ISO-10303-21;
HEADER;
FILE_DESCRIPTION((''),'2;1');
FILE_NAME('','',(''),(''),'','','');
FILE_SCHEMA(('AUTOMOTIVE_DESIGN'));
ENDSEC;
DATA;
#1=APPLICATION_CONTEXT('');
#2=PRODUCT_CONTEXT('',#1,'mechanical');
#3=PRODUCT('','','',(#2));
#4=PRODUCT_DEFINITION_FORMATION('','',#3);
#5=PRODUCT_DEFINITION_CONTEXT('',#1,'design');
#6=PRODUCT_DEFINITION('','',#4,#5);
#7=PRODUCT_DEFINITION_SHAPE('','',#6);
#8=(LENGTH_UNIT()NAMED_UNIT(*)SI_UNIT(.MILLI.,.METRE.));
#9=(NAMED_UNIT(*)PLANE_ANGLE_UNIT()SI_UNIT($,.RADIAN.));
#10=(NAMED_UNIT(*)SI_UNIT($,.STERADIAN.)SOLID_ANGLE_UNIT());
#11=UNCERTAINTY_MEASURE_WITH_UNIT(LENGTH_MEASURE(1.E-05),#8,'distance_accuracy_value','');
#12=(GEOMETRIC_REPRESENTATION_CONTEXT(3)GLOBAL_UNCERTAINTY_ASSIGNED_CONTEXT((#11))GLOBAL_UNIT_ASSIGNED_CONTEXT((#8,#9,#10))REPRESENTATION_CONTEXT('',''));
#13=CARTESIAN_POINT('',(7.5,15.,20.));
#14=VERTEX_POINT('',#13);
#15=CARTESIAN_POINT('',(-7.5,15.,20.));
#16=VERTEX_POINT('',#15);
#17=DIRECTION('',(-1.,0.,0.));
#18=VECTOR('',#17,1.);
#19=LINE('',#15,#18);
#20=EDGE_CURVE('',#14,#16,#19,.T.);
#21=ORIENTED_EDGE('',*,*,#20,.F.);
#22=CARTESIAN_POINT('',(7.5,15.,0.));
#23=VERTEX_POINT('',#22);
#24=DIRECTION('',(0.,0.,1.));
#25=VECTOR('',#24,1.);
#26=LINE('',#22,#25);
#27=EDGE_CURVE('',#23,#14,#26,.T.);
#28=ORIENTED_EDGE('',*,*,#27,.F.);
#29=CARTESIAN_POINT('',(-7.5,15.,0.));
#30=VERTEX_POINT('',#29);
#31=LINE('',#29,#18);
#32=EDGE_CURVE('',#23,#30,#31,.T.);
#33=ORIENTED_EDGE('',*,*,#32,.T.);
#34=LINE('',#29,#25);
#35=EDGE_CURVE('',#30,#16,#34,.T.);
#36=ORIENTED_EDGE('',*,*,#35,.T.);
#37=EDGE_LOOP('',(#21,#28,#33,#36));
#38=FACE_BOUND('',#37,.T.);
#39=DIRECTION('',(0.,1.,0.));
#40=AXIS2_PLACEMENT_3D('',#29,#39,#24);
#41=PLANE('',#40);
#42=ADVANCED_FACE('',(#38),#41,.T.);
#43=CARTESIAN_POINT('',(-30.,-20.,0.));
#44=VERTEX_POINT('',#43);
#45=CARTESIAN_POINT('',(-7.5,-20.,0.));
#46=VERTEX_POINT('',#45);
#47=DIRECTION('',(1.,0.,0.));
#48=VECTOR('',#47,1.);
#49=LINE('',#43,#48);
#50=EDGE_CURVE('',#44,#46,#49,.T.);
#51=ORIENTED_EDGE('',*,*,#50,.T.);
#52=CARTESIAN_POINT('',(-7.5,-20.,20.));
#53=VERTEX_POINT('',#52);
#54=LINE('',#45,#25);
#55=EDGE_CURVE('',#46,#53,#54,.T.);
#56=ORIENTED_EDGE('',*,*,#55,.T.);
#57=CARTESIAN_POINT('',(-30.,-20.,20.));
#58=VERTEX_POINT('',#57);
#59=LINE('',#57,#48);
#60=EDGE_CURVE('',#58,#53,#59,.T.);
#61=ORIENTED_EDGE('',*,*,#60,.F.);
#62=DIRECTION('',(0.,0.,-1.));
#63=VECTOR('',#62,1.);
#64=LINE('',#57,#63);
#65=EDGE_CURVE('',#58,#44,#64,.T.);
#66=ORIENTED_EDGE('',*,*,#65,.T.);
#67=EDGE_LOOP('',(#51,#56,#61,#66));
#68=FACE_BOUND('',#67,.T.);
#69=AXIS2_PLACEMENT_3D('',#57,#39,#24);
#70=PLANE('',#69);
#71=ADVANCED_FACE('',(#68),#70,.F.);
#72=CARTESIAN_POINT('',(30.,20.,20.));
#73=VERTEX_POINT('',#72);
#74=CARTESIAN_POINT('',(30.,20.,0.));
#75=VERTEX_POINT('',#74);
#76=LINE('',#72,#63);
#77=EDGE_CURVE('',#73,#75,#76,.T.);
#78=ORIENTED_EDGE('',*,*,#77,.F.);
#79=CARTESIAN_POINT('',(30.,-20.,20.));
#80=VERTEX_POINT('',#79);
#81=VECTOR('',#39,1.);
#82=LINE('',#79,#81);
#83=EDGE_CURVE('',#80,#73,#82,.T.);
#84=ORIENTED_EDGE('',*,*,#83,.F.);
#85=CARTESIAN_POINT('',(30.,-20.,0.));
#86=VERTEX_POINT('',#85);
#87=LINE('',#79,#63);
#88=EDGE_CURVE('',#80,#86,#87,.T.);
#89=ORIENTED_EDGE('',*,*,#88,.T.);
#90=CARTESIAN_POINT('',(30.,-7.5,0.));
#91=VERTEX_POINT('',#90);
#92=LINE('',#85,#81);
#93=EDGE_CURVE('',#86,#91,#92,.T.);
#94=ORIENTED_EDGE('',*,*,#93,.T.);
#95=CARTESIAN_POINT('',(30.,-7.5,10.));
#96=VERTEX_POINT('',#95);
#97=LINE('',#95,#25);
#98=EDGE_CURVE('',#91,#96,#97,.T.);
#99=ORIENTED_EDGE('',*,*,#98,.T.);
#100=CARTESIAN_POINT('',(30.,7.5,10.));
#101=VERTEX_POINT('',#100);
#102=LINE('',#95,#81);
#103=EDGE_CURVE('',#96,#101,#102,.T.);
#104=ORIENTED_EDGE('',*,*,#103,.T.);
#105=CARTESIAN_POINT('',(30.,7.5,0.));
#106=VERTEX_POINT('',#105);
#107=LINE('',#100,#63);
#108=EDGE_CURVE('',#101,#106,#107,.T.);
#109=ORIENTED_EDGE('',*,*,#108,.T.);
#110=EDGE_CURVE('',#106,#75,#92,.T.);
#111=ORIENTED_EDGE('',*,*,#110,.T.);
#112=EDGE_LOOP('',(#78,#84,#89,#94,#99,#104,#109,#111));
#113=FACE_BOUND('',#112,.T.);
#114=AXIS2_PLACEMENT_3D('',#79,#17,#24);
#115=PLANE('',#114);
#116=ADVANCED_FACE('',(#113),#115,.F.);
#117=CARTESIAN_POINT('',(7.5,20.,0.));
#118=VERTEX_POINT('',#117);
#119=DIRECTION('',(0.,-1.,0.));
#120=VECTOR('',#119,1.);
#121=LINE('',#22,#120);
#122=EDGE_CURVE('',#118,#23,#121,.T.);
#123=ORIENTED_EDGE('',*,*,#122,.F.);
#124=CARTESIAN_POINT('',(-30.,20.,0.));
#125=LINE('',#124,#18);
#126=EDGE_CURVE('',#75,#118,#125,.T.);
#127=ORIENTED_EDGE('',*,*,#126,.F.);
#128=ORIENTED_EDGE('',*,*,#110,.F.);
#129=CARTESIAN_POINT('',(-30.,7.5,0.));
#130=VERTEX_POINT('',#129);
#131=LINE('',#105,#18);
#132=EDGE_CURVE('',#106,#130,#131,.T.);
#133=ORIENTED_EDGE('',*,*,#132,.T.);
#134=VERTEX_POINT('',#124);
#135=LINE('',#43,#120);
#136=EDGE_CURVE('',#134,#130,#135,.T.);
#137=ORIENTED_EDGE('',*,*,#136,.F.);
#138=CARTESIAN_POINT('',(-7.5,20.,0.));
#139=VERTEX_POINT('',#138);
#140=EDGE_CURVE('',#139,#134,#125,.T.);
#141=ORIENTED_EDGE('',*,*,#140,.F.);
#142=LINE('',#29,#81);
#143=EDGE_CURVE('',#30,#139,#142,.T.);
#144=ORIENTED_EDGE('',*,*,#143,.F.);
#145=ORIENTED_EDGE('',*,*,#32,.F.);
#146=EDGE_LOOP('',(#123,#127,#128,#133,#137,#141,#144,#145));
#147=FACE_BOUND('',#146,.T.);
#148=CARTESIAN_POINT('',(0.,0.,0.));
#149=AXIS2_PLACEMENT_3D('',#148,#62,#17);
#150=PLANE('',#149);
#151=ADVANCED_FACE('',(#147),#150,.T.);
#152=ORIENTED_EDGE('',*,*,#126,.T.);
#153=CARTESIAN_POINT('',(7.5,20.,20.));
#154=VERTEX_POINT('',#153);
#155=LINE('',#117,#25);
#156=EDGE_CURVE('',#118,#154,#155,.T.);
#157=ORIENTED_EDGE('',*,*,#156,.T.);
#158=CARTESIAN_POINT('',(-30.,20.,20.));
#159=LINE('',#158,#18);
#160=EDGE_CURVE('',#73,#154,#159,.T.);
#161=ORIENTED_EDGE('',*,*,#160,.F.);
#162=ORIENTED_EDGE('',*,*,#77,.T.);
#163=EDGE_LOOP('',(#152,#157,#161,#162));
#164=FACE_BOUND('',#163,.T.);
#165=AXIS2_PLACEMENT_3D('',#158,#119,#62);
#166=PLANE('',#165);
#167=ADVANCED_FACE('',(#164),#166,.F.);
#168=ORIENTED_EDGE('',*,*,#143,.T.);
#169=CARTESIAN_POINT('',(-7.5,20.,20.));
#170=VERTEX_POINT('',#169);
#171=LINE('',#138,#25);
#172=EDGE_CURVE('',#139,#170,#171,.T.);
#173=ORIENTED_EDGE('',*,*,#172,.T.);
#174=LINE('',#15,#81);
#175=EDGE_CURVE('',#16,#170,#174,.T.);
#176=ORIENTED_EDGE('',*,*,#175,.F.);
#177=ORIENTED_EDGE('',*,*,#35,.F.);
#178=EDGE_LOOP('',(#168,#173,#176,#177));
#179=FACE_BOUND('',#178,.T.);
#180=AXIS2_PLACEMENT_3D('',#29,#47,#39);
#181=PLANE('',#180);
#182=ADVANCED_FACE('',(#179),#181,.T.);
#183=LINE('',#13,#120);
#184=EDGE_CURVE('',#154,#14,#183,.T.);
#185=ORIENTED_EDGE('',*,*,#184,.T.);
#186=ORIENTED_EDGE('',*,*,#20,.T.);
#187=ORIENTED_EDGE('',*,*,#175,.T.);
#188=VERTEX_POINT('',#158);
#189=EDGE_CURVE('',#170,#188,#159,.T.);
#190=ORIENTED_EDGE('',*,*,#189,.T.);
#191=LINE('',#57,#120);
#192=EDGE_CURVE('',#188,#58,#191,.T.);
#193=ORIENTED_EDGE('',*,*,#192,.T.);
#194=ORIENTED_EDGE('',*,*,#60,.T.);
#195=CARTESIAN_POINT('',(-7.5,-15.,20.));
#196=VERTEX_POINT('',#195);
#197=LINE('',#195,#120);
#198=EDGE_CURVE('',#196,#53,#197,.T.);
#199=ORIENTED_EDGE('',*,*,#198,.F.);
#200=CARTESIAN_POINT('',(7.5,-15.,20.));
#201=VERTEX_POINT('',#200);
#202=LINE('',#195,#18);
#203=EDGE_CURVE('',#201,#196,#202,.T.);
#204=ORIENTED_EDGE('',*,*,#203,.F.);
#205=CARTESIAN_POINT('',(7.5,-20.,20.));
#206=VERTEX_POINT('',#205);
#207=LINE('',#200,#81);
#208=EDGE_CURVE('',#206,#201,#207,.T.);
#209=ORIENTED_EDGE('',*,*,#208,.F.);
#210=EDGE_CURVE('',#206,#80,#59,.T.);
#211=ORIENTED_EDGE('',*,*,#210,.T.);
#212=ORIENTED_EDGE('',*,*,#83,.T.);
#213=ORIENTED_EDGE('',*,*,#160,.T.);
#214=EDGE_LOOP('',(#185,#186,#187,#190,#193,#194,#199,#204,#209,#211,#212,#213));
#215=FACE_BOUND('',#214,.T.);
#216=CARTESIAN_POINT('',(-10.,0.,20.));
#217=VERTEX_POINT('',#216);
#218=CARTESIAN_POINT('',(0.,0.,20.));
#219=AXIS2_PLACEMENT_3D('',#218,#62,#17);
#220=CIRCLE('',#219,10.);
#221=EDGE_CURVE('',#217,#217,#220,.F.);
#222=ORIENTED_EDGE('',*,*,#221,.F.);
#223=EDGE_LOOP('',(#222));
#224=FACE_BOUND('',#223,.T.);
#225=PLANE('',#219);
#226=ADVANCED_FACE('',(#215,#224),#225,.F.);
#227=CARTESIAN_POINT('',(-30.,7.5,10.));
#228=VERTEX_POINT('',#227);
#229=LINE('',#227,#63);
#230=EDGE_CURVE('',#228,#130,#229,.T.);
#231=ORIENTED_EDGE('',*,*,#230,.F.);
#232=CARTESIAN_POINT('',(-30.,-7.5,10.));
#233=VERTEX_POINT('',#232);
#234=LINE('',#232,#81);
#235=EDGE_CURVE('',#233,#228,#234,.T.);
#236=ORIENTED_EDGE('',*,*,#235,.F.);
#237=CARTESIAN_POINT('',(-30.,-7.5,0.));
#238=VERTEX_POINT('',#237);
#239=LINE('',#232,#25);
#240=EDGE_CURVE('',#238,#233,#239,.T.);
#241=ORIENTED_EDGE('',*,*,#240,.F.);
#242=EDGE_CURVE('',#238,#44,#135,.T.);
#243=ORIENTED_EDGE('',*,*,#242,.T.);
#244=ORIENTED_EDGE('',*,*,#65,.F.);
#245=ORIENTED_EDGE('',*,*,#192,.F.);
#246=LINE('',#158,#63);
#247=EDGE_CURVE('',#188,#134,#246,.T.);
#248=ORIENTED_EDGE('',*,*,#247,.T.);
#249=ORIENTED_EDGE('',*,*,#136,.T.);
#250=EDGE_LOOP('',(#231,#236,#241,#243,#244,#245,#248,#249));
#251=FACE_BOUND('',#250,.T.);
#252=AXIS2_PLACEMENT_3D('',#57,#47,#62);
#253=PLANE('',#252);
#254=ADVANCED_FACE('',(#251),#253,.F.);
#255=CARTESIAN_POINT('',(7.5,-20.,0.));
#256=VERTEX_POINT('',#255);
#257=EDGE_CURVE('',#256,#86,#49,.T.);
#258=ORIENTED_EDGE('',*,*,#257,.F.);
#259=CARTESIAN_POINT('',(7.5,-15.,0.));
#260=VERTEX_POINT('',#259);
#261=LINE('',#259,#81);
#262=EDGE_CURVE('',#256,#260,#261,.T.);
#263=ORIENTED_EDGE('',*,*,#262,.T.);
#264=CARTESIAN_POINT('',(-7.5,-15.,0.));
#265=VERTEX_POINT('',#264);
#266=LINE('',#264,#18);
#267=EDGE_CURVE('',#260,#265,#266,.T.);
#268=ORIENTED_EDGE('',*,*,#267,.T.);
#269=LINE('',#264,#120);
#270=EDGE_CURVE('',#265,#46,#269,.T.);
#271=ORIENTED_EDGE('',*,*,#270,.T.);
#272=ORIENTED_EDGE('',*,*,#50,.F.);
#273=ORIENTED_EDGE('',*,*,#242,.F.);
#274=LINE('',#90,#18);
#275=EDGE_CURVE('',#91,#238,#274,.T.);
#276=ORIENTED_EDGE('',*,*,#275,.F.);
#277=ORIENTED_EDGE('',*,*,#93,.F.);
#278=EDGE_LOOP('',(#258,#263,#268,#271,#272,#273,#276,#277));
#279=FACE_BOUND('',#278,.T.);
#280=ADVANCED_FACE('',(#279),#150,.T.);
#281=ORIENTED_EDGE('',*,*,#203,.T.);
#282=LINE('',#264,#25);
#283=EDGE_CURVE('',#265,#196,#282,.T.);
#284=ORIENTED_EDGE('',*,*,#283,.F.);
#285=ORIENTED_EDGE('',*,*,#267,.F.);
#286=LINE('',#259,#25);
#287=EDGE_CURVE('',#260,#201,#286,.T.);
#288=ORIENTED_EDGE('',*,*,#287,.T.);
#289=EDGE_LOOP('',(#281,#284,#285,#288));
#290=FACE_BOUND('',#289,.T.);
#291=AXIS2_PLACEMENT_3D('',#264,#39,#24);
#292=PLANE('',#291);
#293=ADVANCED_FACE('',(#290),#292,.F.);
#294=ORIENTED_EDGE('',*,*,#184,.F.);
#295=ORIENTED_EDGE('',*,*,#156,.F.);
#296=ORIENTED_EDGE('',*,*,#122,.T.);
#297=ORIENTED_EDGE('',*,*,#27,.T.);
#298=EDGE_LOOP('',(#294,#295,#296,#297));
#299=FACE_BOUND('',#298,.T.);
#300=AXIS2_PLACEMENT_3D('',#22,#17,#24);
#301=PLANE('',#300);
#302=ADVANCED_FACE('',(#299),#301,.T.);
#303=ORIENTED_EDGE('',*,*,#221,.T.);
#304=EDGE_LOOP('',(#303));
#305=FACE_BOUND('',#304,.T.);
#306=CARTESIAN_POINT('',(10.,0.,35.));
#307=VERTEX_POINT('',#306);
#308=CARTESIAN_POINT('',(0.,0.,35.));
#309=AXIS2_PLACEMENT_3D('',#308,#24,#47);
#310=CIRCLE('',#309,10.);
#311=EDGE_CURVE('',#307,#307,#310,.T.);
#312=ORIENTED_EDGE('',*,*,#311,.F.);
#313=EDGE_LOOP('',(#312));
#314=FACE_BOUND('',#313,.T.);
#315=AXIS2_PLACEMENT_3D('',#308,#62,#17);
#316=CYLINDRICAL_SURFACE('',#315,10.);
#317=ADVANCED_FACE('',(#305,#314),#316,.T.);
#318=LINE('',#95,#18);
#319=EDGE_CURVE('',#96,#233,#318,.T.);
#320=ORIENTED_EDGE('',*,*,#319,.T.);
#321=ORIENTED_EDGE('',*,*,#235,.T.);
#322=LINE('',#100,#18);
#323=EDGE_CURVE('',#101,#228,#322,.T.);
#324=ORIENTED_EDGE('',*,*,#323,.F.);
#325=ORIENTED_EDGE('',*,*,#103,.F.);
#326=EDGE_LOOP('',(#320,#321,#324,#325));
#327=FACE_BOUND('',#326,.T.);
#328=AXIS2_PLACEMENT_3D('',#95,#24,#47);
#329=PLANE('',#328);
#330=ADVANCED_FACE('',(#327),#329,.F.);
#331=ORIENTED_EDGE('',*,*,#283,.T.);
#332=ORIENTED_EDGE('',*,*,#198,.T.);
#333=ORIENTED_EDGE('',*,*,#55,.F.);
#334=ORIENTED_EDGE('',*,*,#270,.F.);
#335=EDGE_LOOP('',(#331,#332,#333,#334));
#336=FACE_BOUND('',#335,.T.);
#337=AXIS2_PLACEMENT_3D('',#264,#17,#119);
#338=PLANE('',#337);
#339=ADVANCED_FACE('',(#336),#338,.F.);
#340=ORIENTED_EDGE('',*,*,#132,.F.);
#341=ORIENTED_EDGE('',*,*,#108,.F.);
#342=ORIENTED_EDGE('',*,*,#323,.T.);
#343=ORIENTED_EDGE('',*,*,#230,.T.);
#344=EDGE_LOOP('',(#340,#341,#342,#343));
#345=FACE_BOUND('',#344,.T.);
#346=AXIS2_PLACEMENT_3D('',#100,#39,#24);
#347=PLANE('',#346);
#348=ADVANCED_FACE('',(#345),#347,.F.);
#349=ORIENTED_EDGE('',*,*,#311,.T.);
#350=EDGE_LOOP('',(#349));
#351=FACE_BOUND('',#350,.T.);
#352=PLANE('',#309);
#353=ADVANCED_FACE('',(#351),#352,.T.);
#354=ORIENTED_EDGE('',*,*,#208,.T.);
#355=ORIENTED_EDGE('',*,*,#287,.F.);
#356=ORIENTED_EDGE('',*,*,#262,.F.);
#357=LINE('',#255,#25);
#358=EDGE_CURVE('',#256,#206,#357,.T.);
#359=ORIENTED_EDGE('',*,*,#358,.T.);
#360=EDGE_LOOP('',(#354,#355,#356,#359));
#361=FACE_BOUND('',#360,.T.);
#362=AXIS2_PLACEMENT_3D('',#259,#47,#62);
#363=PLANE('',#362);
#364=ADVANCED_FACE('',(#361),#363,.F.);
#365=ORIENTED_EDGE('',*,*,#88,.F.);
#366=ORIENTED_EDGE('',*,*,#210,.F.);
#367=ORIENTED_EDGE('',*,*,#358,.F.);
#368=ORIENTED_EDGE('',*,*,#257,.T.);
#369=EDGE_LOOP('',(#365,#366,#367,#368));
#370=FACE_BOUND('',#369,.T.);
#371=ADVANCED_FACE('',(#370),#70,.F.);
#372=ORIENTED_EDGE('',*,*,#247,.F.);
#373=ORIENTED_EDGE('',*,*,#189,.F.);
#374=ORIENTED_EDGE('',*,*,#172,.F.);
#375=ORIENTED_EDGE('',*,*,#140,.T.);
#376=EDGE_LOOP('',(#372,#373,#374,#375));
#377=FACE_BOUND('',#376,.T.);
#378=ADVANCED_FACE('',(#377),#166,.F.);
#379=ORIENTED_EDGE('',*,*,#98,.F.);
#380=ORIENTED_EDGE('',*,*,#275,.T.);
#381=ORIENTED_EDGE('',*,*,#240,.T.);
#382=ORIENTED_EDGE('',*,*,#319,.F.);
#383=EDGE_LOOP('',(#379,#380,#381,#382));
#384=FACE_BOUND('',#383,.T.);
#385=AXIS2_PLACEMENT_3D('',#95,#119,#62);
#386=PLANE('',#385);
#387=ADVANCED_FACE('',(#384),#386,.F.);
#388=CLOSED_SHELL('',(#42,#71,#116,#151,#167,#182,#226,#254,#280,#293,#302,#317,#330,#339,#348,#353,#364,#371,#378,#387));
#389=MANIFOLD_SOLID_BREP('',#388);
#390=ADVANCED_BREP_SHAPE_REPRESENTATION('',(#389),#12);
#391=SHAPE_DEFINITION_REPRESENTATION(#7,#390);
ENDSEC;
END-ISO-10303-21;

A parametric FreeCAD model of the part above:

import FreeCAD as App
import Part
import Sketcher


def add_polygon(sketch, points):
    """Adds a closed chain of lines whose ends are joined by coincident constraints."""
    first, n = sketch.GeometryCount, len(points)
    for a, b in zip(points, points[1:] + points[:1]):
        sketch.addGeometry(Part.LineSegment(App.Vector(*a, 0), App.Vector(*b, 0)), False)
    for i in range(n):
        sketch.addConstraint(Sketcher.Constraint("Coincident", first + i, 2, first + (i + 1) % n, 1))

doc = App.newDocument("Part")
body = doc.addObject("PartDesign::Body", "Body")

# Sketch on XY plane
sketch1 = body.newObject("Sketcher::SketchObject", "Sketch")
sketch1.AttachmentSupport = (doc.getObject("XY_Plane"), [""])
sketch1.MapMode = "FlatFace"
add_polygon(sketch1, [(-30, 20), (-30, -20), (30, -20), (30, 20)])  # lines 0-3
sketch1.addConstraint(Sketcher.Constraint("Vertical", 0))
sketch1.addConstraint(Sketcher.Constraint("Horizontal", 1))
sketch1.addConstraint(Sketcher.Constraint("Vertical", 2))
sketch1.addConstraint(Sketcher.Constraint("Horizontal", 3))
sketch1.addConstraint(Sketcher.Constraint("Symmetric", 0, 2, 2, 2, -1, 1))
sketch1.addConstraint(Sketcher.Constraint("DistanceX", 1, 1, 1, 2, 60.0))
sketch1.addConstraint(Sketcher.Constraint("DistanceY", 0, 2, 0, 1, 40.0))
pad1 = body.newObject("PartDesign::Pad", "Pad")
pad1.Profile = sketch1
pad1.Length = 20

# Sketch on XY plane
sketch2 = body.newObject("Sketcher::SketchObject", "Sketch001")
sketch2.AttachmentSupport = (doc.getObject("XY_Plane"), [""])
sketch2.MapMode = "FlatFace"
sketch2.AttachmentOffset = App.Placement(App.Vector(0, 0, 20), App.Rotation())
sketch2.addGeometry(Part.Circle(App.Vector(0, 0, 0), App.Vector(0, 0, 1), 10), False)
sketch2.addConstraint(Sketcher.Constraint("Coincident", 0, 3, -1, 1))
sketch2.addConstraint(Sketcher.Constraint("Diameter", 0, 20.0))
pad2 = body.newObject("PartDesign::Pad", "Pad001")
pad2.Profile = sketch2
pad2.Length = 15

# Sketch on XY plane
sketch3 = body.newObject("Sketcher::SketchObject", "Sketch002")
sketch3.AttachmentSupport = (doc.getObject("XY_Plane"), [""])
sketch3.MapMode = "FlatFace"
sketch3.AttachmentOffset = App.Placement(App.Vector(0, 0, 20), App.Rotation())
add_polygon(sketch3, [(-8, -15), (-8, -20), (8, -20), (8, -15)])  # lines 0-3
sketch3.addConstraint(Sketcher.Constraint("Vertical", 0))
sketch3.addConstraint(Sketcher.Constraint("Horizontal", 1))
sketch3.addConstraint(Sketcher.Constraint("Vertical", 2))
sketch3.addConstraint(Sketcher.Constraint("Horizontal", 3))
sketch3.addConstraint(Sketcher.Constraint("DistanceX", 1, 1, 1, 2, 15.0))
sketch3.addConstraint(Sketcher.Constraint("DistanceY", 0, 2, 0, 1, 5.0))
sketch3.addConstraint(Sketcher.Constraint("DistanceY", 0, 2, -1, 1, 20.0))
sketch3.addConstraint(Sketcher.Constraint("DistanceX", 0, 2, -1, 1, 7.5))
pocket1 = body.newObject("PartDesign::Pocket", "Pocket")
pocket1.Profile = sketch3
pocket1.Type = "ThroughAll"
doc.recompute()

mirrored = body.newObject("PartDesign::Mirrored", "Mirrored")
mirrored.Originals = [pocket1]
mirrored.MirrorPlane = (doc.getObject("XZ_Plane"), [""])
body.Tip = mirrored

# Sketch on YZ plane
sketch4 = body.newObject("Sketcher::SketchObject", "Sketch003")
sketch4.AttachmentSupport = (doc.getObject("YZ_Plane"), [""])
sketch4.MapMode = "FlatFace"
sketch4.AttachmentOffset = App.Placement(App.Vector(0, 0, -30), App.Rotation())
add_polygon(sketch4, [(8, 0), (-8, 0), (-8, 10), (8, 10)])  # lines 0-3
sketch4.addConstraint(Sketcher.Constraint("Horizontal", 0))
sketch4.addConstraint(Sketcher.Constraint("Vertical", 1))
sketch4.addConstraint(Sketcher.Constraint("Horizontal", 2))
sketch4.addConstraint(Sketcher.Constraint("Vertical", 3))
sketch4.addConstraint(Sketcher.Constraint("Symmetric", 0, 2, 3, 2, -1, 1))
sketch4.addConstraint(Sketcher.Constraint("DistanceX", 0, 2, 0, 1, 15.0))
sketch4.addConstraint(Sketcher.Constraint("DistanceY", 1, 1, 1, 2, 10.0))
pocket2 = body.newObject("PartDesign::Pocket", "Pocket001")
pocket2.Profile = sketch4
pocket2.Type = "ThroughAll"
pocket2.Reversed = True

doc.recompute()
